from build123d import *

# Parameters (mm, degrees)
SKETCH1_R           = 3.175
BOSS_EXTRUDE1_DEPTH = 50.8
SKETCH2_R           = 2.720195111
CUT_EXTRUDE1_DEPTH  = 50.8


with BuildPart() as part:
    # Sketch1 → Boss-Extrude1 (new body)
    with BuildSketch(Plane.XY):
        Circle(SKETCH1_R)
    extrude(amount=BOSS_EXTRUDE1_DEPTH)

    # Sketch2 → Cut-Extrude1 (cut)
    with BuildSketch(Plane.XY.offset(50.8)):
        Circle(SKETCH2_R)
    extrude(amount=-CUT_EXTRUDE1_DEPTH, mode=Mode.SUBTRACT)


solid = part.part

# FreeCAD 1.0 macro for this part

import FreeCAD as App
import Part
import Sketcher

V = App.Vector
Q = App.Units.Quantity

doc = App.newDocument("Part")
body = doc.addObject("PartDesign::Body", "Body")

# Sketch on XY plane
sketch1 = body.newObject("Sketcher::SketchObject", "Sketch")
sketch1.AttachmentSupport = (doc.getObject("XY_Plane"), [""])
sketch1.MapMode = "FlatFace"
sketch1.addGeometry(Part.Circle(V(0, 0, 0), V(0, 0, 1), 3.2), False)
sketch1.addConstraint(Sketcher.Constraint("Coincident", 0, 3, -1, 1))
sketch1.addConstraint(Sketcher.Constraint("Diameter", 0, Q("0.25 in")))
pad1 = body.newObject("PartDesign::Pad", "Pad")
pad1.Profile = sketch1
pad1.Length = Q("2 in")

# Sketch on XY plane
sketch2 = body.newObject("Sketcher::SketchObject", "Sketch001")
sketch2.AttachmentSupport = (doc.getObject("XY_Plane"), [""])
sketch2.MapMode = "FlatFace"
sketch2.AttachmentOffset = App.Placement(V(0, 0, 2 * 25.4), App.Rotation())
sketch2.addGeometry(Part.Circle(V(0, 0, 0), V(0, 0, 1), 2.7), False)
sketch2.addConstraint(Sketcher.Constraint("Coincident", 0, 3, -1, 1))
sketch2.addConstraint(Sketcher.Constraint("Diameter", 0, Q("5.44039 mm")))
pocket1 = body.newObject("PartDesign::Pocket", "Pocket")
pocket1.Profile = sketch2
pocket1.Length = Q("2 in")

doc.recompute()
